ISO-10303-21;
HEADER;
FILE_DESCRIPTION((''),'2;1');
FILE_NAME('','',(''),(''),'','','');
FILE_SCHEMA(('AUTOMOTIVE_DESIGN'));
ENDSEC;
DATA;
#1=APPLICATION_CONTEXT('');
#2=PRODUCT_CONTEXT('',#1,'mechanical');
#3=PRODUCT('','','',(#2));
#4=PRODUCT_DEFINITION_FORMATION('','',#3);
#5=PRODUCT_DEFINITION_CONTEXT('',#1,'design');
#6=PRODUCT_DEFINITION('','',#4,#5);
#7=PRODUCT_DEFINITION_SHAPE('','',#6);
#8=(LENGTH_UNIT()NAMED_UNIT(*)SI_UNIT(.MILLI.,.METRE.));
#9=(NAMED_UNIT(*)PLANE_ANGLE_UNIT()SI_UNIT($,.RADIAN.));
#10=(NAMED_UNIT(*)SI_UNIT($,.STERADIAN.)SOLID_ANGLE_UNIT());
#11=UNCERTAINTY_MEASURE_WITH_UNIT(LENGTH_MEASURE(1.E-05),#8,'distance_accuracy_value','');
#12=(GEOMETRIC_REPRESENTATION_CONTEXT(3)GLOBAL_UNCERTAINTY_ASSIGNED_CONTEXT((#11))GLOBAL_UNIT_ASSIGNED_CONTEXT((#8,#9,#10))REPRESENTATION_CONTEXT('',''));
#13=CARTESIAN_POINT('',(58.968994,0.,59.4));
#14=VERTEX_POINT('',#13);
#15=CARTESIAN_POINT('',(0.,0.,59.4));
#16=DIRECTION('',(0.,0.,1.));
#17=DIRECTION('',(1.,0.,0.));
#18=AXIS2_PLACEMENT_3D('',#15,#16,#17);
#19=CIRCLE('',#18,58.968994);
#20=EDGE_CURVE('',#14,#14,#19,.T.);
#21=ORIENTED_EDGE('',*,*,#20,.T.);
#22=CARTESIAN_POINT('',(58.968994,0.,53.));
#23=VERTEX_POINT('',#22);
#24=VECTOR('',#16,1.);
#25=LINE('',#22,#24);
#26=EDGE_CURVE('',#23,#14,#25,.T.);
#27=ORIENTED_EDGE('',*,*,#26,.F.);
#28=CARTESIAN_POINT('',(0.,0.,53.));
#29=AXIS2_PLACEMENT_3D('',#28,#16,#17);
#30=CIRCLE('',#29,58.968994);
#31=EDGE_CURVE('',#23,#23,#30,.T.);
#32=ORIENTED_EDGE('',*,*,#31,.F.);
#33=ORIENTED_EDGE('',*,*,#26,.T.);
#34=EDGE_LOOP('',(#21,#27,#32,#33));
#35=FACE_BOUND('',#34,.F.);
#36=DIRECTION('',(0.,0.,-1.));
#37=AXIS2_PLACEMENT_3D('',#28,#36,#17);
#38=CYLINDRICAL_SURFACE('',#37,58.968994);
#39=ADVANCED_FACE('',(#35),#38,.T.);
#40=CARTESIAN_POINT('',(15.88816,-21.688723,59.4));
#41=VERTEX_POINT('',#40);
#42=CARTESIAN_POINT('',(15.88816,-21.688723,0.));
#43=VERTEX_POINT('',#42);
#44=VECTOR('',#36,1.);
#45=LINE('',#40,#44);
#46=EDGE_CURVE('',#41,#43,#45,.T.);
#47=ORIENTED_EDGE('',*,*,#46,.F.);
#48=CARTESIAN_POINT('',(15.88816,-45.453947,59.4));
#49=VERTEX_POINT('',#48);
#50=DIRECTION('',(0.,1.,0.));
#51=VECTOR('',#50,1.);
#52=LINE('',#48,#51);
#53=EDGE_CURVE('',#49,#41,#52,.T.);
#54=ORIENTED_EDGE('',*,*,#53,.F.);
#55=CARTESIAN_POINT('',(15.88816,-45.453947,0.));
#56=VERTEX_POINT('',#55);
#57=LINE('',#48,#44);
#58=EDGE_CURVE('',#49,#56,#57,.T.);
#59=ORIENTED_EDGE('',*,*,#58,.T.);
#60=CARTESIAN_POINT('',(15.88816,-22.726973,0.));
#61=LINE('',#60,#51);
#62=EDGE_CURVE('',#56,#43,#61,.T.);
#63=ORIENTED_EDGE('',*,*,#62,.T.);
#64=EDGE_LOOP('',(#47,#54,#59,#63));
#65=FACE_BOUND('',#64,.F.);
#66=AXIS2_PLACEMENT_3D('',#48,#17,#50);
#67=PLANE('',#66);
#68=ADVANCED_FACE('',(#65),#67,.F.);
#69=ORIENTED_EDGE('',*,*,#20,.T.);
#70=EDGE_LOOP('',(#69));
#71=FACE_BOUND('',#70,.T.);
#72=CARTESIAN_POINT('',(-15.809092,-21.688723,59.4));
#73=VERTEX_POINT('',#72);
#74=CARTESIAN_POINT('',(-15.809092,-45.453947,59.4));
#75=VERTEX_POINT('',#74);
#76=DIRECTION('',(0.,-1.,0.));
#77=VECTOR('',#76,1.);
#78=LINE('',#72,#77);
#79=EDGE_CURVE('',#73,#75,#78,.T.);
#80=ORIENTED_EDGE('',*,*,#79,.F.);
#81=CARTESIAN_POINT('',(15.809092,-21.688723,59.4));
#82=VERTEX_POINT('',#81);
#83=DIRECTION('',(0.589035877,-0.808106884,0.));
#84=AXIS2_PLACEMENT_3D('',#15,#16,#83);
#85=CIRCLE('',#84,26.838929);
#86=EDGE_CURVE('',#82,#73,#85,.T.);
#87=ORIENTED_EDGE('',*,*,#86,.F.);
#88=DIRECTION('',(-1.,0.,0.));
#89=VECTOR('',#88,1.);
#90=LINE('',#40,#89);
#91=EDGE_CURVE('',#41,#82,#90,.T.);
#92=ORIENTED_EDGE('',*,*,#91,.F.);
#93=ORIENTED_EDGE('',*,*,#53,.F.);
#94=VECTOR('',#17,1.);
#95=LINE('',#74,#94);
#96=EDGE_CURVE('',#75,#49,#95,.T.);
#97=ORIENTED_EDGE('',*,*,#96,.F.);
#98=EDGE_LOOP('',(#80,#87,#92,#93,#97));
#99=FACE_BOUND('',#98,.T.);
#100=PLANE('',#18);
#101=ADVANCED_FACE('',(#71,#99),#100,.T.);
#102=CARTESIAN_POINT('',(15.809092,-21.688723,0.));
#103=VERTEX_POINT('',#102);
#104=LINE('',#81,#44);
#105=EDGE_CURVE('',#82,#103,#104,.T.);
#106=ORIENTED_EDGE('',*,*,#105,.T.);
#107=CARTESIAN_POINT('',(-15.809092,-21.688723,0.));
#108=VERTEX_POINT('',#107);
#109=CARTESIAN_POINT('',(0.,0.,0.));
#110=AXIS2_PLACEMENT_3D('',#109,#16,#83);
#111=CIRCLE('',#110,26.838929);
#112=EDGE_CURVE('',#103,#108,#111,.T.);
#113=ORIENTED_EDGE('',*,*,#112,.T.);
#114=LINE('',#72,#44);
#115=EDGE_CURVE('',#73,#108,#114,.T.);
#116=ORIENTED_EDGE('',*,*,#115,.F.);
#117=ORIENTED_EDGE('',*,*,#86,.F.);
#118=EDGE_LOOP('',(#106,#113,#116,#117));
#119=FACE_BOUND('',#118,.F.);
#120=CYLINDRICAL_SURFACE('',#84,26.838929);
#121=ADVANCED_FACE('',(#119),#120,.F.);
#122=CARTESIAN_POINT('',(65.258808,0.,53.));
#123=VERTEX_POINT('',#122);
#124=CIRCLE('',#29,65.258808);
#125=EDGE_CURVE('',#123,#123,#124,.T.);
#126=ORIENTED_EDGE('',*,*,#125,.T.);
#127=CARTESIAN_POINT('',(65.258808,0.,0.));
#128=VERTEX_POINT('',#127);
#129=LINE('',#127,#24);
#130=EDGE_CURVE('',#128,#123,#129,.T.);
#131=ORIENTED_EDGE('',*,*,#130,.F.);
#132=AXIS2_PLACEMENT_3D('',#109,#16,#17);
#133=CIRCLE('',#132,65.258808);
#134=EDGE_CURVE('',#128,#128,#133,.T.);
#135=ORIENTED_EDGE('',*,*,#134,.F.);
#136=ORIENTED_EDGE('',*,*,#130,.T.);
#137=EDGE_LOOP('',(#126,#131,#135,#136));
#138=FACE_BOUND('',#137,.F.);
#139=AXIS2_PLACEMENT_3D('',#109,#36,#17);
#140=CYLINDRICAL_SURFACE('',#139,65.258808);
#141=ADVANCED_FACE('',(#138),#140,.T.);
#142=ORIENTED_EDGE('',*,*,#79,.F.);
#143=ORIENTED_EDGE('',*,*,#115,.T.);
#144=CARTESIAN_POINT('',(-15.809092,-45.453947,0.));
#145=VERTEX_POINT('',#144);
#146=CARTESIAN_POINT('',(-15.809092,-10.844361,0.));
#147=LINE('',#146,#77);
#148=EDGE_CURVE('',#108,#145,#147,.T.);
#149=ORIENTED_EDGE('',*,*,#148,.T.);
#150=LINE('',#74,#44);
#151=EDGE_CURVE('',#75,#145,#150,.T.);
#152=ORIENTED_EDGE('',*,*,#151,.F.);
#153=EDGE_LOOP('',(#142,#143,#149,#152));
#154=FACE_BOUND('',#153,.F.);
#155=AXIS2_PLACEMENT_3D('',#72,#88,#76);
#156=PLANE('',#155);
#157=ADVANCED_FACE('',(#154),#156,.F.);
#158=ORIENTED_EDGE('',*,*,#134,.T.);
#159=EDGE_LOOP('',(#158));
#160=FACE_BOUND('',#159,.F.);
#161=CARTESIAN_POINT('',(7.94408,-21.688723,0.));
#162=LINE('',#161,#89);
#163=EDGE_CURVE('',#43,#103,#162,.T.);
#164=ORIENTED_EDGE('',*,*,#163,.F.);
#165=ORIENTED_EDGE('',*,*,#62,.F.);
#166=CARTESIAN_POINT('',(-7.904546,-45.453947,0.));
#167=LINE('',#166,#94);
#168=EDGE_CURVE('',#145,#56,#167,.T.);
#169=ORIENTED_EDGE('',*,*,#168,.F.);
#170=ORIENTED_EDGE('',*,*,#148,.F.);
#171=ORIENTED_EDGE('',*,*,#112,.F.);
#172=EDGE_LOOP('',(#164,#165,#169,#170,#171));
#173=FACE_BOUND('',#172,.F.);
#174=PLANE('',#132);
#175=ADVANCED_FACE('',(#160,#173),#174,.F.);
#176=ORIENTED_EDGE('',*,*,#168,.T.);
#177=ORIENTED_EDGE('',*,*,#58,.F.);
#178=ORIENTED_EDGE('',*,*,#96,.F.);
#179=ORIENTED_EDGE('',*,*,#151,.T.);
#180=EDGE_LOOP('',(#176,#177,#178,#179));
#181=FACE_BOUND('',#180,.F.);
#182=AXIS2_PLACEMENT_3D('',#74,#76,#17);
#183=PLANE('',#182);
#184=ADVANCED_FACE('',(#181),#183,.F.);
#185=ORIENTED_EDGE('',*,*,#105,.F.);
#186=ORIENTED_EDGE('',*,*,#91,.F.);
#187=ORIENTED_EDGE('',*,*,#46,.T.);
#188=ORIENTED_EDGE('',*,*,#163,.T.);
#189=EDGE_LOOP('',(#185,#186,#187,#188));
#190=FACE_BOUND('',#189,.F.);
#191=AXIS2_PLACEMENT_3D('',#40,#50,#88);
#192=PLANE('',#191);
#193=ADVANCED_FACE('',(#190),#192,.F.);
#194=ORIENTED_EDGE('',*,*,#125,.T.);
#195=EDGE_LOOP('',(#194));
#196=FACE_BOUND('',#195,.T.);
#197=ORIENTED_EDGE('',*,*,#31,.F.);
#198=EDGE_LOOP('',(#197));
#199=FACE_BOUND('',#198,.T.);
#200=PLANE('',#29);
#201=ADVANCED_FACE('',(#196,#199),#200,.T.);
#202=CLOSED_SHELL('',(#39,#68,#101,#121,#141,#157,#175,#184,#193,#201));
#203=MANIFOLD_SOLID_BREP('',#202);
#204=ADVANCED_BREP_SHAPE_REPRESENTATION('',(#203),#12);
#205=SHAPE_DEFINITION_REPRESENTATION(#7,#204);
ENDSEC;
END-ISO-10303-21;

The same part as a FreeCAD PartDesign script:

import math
import FreeCAD as App
import Part
import Sketcher

V = App.Vector
Q = App.Units.Quantity

doc = App.newDocument("Part")
body = doc.addObject("PartDesign::Body", "Body")

sketch1 = body.newObject("Sketcher::SketchObject", "Sketch")
sketch1.AttachmentSupport = (doc.getObject("XY_Plane"), [""])
sketch1.MapMode = "FlatFace"
sketch1.addGeometry(Part.Circle(V(0, 0, 0), V(0, 0, 1), 65), False)
sketch1.addConstraint([
    Sketcher.Constraint("Coincident", 0, 3, -1, 1),
    Sketcher.Constraint("Diameter", 0, Q("130.517616 mm")),
])
pad1 = body.newObject("PartDesign::Pad", "Pad")
pad1.Profile = sketch1
pad1.Length = 53

sketch2 = body.newObject("Sketcher::SketchObject", "Sketch001")
sketch2.AttachmentSupport = (doc.getObject("XY_Plane"), [""])
sketch2.MapMode = "FlatFace"
sketch2.AttachmentOffset = App.Placement(V(0, 0, 53), App.Rotation())
sketch2.addGeometry(Part.Circle(V(0, 0, 0), V(0, 0, 1), 59), False)
sketch2.addConstraint([
    Sketcher.Constraint("Coincident", 0, 3, -1, 1),
    Sketcher.Constraint("Diameter", 0, Q("117.937988 mm")),
])
pad2 = body.newObject("PartDesign::Pad", "Pad001")
pad2.Profile = sketch2
pad2.Length = 6.4

sketch3 = body.newObject("Sketcher::SketchObject", "Sketch002")
sketch3.AttachmentSupport = (doc.getObject("XY_Plane"), [""])
sketch3.MapMode = "FlatFace"
sketch3.AttachmentOffset = App.Placement(V(0, 0, 59.4), App.Rotation())
sketch3.addGeometry([
    Part.LineSegment(V(15.89, -21.69, 0), V(15.81, -21.69, 0)),
    Part.ArcOfCircle(Part.Circle(V(0, 0, 0), V(0, 0, 1), 26.84), math.radians(-54), math.radians(234)),
    Part.LineSegment(V(-15.81, -21.69, 0), V(-15.81, -45.45, 0)),
    Part.LineSegment(V(-15.81, -45.45, 0), V(15.89, -45.45, 0)),
    Part.LineSegment(V(15.89, -45.45, 0), V(15.89, -21.69, 0)),
], False)
sketch3.addConstraint([
    Sketcher.Constraint("Coincident", 0, 2, 1, 1),
    Sketcher.Constraint("Coincident", 1, 2, 2, 1),
    Sketcher.Constraint("Coincident", 2, 2, 3, 1),
    Sketcher.Constraint("Coincident", 3, 2, 4, 1),
    Sketcher.Constraint("Coincident", 4, 2, 0, 1),
    Sketcher.Constraint("Horizontal", 0),
    Sketcher.Constraint("Vertical", 2),
    Sketcher.Constraint("Horizontal", 3),
    Sketcher.Constraint("Vertical", 4),
    Sketcher.Constraint("Coincident", 1, 3, -1, 1),
    Sketcher.Constraint("Horizontal", 0, 2, 1, 2),
    Sketcher.Constraint("Radius", 1, Q("26.838929 mm")),
    Sketcher.Constraint("DistanceX", 3, 1, 3, 2, Q("31.697252 mm")),
    Sketcher.Constraint("DistanceX", 0, 2, 0, 1, Q("0.079068 mm")),
    Sketcher.Constraint("DistanceY", 2, 2, 2, 1, Q("23.765224 mm")),
])
pocket1 = body.newObject("PartDesign::Pocket", "Pocket")
pocket1.Profile = sketch3
pocket1.Length = 73.5

doc.recompute()
